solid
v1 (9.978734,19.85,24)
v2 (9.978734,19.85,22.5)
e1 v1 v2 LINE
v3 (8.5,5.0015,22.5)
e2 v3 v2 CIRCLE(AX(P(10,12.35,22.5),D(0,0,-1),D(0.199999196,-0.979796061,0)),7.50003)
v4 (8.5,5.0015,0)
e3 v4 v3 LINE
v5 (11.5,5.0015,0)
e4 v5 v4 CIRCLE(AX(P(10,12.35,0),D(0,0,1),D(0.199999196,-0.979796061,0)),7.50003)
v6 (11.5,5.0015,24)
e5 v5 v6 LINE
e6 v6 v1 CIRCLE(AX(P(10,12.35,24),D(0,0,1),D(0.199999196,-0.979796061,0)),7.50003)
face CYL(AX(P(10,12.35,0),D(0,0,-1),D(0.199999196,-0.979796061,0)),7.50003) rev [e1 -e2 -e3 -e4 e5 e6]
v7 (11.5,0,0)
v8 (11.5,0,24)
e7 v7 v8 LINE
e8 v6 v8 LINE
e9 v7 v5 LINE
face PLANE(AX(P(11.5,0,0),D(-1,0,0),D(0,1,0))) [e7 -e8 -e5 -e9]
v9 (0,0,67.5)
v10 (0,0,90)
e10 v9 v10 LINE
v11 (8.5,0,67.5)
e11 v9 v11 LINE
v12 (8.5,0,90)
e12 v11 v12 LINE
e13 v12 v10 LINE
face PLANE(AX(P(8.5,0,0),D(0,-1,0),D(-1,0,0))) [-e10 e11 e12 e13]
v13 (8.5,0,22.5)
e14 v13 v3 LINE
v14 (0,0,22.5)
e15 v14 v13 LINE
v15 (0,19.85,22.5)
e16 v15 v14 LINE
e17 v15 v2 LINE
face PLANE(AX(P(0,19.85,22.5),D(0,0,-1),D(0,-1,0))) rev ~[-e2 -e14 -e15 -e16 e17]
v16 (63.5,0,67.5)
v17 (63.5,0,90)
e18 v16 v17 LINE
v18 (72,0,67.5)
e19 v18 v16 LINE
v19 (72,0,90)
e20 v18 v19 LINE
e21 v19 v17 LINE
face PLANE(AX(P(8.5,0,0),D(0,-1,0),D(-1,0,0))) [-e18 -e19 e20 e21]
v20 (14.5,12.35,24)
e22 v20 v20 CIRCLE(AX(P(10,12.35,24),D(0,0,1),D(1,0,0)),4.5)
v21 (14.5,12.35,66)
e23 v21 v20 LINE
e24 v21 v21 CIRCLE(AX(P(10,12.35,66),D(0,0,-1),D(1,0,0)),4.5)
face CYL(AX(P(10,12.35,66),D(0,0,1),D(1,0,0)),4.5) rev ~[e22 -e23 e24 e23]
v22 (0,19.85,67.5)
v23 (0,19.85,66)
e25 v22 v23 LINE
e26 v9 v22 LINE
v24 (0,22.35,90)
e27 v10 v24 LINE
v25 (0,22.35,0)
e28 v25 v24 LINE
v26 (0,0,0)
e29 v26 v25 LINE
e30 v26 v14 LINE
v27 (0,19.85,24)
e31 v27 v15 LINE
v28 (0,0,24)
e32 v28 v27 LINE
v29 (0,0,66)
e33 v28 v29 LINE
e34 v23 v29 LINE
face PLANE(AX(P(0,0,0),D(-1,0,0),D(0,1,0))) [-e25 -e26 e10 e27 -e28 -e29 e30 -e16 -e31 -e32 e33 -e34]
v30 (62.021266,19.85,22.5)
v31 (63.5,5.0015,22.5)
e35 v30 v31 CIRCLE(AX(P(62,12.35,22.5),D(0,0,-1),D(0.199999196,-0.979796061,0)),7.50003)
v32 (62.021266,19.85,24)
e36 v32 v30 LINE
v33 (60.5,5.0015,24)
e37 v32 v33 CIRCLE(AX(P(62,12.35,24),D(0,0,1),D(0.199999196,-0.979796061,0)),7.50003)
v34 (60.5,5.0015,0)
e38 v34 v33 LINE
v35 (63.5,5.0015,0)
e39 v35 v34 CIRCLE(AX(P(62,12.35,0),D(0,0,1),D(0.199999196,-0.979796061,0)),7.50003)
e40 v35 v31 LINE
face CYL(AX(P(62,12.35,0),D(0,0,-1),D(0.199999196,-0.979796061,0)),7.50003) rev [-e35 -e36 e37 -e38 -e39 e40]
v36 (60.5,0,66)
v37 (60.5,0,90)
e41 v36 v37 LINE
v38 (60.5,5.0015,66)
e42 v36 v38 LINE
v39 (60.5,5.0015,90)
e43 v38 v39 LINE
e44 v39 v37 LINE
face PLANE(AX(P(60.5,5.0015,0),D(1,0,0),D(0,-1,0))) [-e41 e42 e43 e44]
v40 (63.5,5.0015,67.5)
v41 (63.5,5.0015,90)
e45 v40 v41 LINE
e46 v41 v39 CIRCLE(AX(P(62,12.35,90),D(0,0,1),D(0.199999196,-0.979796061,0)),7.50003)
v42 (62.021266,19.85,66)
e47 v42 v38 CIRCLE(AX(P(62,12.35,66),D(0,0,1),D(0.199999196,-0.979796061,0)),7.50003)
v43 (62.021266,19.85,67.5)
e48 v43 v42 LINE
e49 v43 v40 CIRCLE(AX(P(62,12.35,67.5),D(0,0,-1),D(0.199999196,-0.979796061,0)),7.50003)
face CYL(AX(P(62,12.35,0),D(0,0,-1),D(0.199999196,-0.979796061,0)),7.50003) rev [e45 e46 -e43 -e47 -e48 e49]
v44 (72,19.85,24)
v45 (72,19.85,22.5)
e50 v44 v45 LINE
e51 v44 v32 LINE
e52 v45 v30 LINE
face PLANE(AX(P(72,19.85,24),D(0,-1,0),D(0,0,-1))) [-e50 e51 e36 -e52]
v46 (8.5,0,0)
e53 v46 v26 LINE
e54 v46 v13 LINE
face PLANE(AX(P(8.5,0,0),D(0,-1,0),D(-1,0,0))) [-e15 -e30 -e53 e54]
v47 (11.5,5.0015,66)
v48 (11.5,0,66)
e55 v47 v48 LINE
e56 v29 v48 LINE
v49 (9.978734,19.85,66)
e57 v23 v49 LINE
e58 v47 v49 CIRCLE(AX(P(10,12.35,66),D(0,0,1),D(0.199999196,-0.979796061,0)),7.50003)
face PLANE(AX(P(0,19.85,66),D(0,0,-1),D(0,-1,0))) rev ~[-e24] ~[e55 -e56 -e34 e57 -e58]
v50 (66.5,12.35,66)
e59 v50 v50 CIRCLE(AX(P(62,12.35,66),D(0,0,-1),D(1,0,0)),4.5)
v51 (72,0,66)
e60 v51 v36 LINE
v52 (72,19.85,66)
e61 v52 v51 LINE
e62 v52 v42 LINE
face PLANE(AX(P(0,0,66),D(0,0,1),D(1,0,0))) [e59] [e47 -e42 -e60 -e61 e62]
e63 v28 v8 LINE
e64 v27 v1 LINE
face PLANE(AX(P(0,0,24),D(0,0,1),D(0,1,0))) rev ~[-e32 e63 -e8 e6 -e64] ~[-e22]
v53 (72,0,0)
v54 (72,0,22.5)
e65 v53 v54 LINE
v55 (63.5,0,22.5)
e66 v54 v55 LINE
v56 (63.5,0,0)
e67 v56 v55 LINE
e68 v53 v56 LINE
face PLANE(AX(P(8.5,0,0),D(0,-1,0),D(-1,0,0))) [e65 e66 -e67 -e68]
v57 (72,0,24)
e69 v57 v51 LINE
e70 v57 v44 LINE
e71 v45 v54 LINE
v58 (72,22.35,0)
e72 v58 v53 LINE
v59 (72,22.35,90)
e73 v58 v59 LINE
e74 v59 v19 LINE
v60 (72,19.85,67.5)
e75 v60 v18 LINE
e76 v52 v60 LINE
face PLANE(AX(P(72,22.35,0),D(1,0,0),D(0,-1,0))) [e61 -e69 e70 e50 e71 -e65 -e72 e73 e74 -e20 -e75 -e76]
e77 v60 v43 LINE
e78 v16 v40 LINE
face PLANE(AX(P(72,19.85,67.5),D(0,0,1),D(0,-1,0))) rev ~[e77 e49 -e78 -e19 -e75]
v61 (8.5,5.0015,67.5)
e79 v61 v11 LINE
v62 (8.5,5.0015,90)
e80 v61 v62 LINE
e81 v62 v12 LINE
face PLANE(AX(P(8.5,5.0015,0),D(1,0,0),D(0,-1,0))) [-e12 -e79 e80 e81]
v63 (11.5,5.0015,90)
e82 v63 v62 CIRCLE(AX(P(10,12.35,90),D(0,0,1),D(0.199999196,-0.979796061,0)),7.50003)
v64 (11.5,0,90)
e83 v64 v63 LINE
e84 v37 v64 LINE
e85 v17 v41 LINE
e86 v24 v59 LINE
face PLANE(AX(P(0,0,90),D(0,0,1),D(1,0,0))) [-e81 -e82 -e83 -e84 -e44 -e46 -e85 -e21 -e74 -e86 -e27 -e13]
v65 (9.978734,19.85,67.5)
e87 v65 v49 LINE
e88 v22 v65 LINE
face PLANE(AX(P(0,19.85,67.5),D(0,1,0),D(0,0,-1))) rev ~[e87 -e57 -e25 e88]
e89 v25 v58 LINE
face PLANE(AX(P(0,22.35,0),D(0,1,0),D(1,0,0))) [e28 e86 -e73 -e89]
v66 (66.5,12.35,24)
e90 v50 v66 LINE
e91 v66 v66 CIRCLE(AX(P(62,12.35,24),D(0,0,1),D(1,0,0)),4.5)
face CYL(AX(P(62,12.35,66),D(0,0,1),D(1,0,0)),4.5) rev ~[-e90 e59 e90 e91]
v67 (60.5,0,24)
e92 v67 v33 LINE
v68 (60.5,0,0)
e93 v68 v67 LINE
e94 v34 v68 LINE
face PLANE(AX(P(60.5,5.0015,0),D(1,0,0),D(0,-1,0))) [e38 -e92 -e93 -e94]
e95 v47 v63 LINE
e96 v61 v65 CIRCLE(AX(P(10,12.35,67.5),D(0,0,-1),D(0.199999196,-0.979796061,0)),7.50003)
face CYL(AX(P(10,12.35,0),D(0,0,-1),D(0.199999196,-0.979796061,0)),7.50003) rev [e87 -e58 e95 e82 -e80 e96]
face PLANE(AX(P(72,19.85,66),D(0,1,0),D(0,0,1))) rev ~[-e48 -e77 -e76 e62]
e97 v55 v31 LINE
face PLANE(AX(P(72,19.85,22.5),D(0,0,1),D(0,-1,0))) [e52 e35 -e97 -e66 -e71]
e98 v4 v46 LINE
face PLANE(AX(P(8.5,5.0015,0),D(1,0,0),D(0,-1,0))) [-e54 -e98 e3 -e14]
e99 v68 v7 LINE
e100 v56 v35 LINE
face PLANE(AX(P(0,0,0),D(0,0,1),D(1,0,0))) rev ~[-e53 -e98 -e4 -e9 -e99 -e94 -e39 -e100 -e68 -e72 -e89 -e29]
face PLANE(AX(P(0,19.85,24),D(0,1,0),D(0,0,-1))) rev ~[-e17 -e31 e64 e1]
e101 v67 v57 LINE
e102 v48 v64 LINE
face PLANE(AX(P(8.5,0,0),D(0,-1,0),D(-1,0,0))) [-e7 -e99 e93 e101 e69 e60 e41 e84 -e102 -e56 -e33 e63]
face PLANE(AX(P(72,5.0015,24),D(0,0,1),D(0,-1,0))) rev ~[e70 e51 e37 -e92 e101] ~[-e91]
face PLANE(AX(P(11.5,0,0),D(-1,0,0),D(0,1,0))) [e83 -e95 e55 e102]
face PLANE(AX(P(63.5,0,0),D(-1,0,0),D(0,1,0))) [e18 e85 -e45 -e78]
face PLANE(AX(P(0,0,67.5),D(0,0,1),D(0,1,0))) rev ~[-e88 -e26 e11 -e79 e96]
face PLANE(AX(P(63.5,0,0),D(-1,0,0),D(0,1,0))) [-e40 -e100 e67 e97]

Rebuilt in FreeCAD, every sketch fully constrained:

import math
import FreeCAD as App
import Part
import Sketcher
from FreeCAD import Vector
Q = App.Units.Quantity


def add_polygon(sketch, points):
    """Adds a closed chain of lines whose ends are joined by coincident constraints."""
    first, n = sketch.GeometryCount, len(points)
    for a, b in zip(points, points[1:] + points[:1]):
        sketch.addGeometry(Part.LineSegment(App.Vector(*a, 0), App.Vector(*b, 0)), False)
    for i in range(n):
        sketch.addConstraint(Sketcher.Constraint("Coincident", first + i, 2, first + (i + 1) % n, 1))

doc = App.newDocument("Part")
body = doc.addObject("PartDesign::Body", "Body")

sketch1 = doc.addObject("Sketcher::SketchObject", "Sketch")
body.addObject(sketch1)
sketch1.AttachmentSupport = (doc.XY_Plane, [""])
sketch1.MapMode = "FlatFace"
sketch1.addGeometry(Part.LineSegment(Vector(0, 22.4, 0), Vector(0, 0, 0)), False)
sketch1.addGeometry(Part.LineSegment(Vector(0, 0, 0), Vector(8.5, 0, 0)), False)
sketch1.addGeometry(Part.LineSegment(Vector(8.5, 0, 0), Vector(8.5, 5, 0)), False)
sketch1.addGeometry(Part.ArcOfCircle(Part.Circle(Vector(10, 12.3, 0), Vector(0, 0, 1), 7.5), math.radians(-78), math.radians(258)), False)
sketch1.addGeometry(Part.LineSegment(Vector(11.5, 5, 0), Vector(11.5, 0, 0)), False)
sketch1.addGeometry(Part.LineSegment(Vector(11.5, 0, 0), Vector(60.5, 0, 0)), False)
sketch1.addGeometry(Part.LineSegment(Vector(60.5, 0, 0), Vector(60.5, 5, 0)), False)
sketch1.addGeometry(Part.ArcOfCircle(Part.Circle(Vector(62, 12.3, 0), Vector(0, 0, 1), 7.5), math.radians(-78), math.radians(258)), False)
sketch1.addGeometry(Part.LineSegment(Vector(63.5, 5, 0), Vector(63.5, 0, 0)), False)
sketch1.addGeometry(Part.LineSegment(Vector(63.5, 0, 0), Vector(72, 0, 0)), False)
sketch1.addGeometry(Part.LineSegment(Vector(72, 0, 0), Vector(72, 22.4, 0)), False)
sketch1.addGeometry(Part.LineSegment(Vector(72, 22.4, 0), Vector(0, 22.4, 0)), False)
sketch1.addConstraint(Sketcher.Constraint("Coincident", 0, 2, 1, 1))
sketch1.addConstraint(Sketcher.Constraint("Coincident", 1, 2, 2, 1))
sketch1.addConstraint(Sketcher.Constraint("Coincident", 2, 2, 3, 2))
sketch1.addConstraint(Sketcher.Constraint("Coincident", 3, 1, 4, 1))
sketch1.addConstraint(Sketcher.Constraint("Coincident", 4, 2, 5, 1))
sketch1.addConstraint(Sketcher.Constraint("Coincident", 5, 2, 6, 1))
sketch1.addConstraint(Sketcher.Constraint("Coincident", 6, 2, 7, 2))
sketch1.addConstraint(Sketcher.Constraint("Coincident", 7, 1, 8, 1))
sketch1.addConstraint(Sketcher.Constraint("Coincident", 8, 2, 9, 1))
sketch1.addConstraint(Sketcher.Constraint("Coincident", 9, 2, 10, 1))
sketch1.addConstraint(Sketcher.Constraint("Coincident", 10, 2, 11, 1))
sketch1.addConstraint(Sketcher.Constraint("Coincident", 11, 2, 0, 1))
sketch1.addConstraint(Sketcher.Constraint("Vertical", 0))
sketch1.addConstraint(Sketcher.Constraint("Horizontal", 1))
sketch1.addConstraint(Sketcher.Constraint("Vertical", 2))
sketch1.addConstraint(Sketcher.Constraint("Vertical", 4))
sketch1.addConstraint(Sketcher.Constraint("Horizontal", 5))
sketch1.addConstraint(Sketcher.Constraint("Vertical", 6))
sketch1.addConstraint(Sketcher.Constraint("Vertical", 8))
sketch1.addConstraint(Sketcher.Constraint("Horizontal", 9))
sketch1.addConstraint(Sketcher.Constraint("Vertical", 10))
sketch1.addConstraint(Sketcher.Constraint("Horizontal", 11))
sketch1.addConstraint(Sketcher.Constraint("Coincident", 0, 2, -1, 1))
sketch1.addConstraint(Sketcher.Constraint("Equal", 3, 7))
sketch1.addConstraint(Sketcher.Constraint("PointOnObject", 4, 2, -1))
sketch1.addConstraint(Sketcher.Constraint("PointOnObject", 8, 2, -1))
sketch1.addConstraint(Sketcher.Constraint("Horizontal", 3, 3, 7, 3))
sketch1.addConstraint(Sketcher.Constraint("Horizontal", 2, 2, 3, 1))
sketch1.addConstraint(Sketcher.Constraint("Horizontal", 3, 1, 6, 2))
sketch1.addConstraint(Sketcher.Constraint("Horizontal", 6, 2, 7, 1))
sketch1.addConstraint(Sketcher.Constraint("Equal", 1, 9))
sketch1.addConstraint(Sketcher.Constraint("Radius", 3, Q("7.5 mm")))
sketch1.addConstraint(Sketcher.Constraint("DistanceX", 11, 2, 11, 1, Q("72 mm")))
sketch1.addConstraint(Sketcher.Constraint("DistanceX", -1, 1, 3, 3, Q("10 mm")))
sketch1.addConstraint(Sketcher.Constraint("DistanceX", 2, 2, 3, 1, Q("3 mm")))
sketch1.addConstraint(Sketcher.Constraint("DistanceY", 7, 3, 10, 2, Q("10 mm")))
sketch1.addConstraint(Sketcher.Constraint("DistanceY", 0, 2, 0, 1, Q("22.35 mm")))
pad1 = doc.addObject("PartDesign::Pad", "Pad")
body.addObject(pad1)
pad1.Profile = sketch1
pad1.Length = 90

sketch2 = doc.addObject("Sketcher::SketchObject", "Sketch001")
body.addObject(sketch2)
sketch2.AttachmentSupport = (doc.XY_Plane, [""])
sketch2.MapMode = "FlatFace"
sketch2.AttachmentOffset = App.Placement(Vector(0, 0, 66), App.Rotation())
sketch2.addGeometry(Part.LineSegment(Vector(8.5, 5, 0), Vector(8.5, 0, 0)), False)
sketch2.addGeometry(Part.LineSegment(Vector(8.5, 0, 0), Vector(11.5, 0, 0)), False)
sketch2.addGeometry(Part.LineSegment(Vector(11.5, 0, 0), Vector(11.5, 5, 0)), False)
sketch2.addGeometry(Part.ArcOfCircle(Part.Circle(Vector(10, 12.3, 0), Vector(0, 0, 1), 7.5), math.radians(-78), math.radians(258)), False)
sketch2.addGeometry(Part.LineSegment(Vector(60.5, 0, 0), Vector(63.5, 0, 0)), False)
sketch2.addGeometry(Part.LineSegment(Vector(63.5, 0, 0), Vector(63.5, 5, 0)), False)
sketch2.addGeometry(Part.ArcOfCircle(Part.Circle(Vector(62, 12.3, 0), Vector(0, 0, 1), 7.5), math.radians(-78), math.radians(258)), False)
sketch2.addGeometry(Part.LineSegment(Vector(60.5, 5, 0), Vector(60.5, 0, 0)), False)
sketch2.addConstraint(Sketcher.Constraint("Coincident", 0, 2, 1, 1))
sketch2.addConstraint(Sketcher.Constraint("Coincident", 1, 2, 2, 1))
sketch2.addConstraint(Sketcher.Constraint("Coincident", 2, 2, 3, 1))
sketch2.addConstraint(Sketcher.Constraint("Coincident", 3, 2, 0, 1))
sketch2.addConstraint(Sketcher.Constraint("Coincident", 4, 2, 5, 1))
sketch2.addConstraint(Sketcher.Constraint("Coincident", 5, 2, 6, 1))
sketch2.addConstraint(Sketcher.Constraint("Coincident", 6, 2, 7, 1))
sketch2.addConstraint(Sketcher.Constraint("Coincident", 7, 2, 4, 1))
sketch2.addConstraint(Sketcher.Constraint("Vertical", 0))
sketch2.addConstraint(Sketcher.Constraint("Horizontal", 1))
sketch2.addConstraint(Sketcher.Constraint("Vertical", 2))
sketch2.addConstraint(Sketcher.Constraint("Horizontal", 4))
sketch2.addConstraint(Sketcher.Constraint("Vertical", 5))
sketch2.addConstraint(Sketcher.Constraint("Vertical", 7))
sketch2.addConstraint(Sketcher.Constraint("Equal", 3, 6))
sketch2.addConstraint(Sketcher.Constraint("PointOnObject", 0, 2, -1))
sketch2.addConstraint(Sketcher.Constraint("PointOnObject", 4, 2, -1))
sketch2.addConstraint(Sketcher.Constraint("Horizontal", 3, 3, 6, 3))
sketch2.addConstraint(Sketcher.Constraint("Horizontal", 2, 2, 3, 2))
sketch2.addConstraint(Sketcher.Constraint("Horizontal", 3, 2, 5, 2))
sketch2.addConstraint(Sketcher.Constraint("Horizontal", 5, 2, 6, 2))
sketch2.addConstraint(Sketcher.Constraint("Radius", 3, Q("7.5 mm")))
sketch2.addConstraint(Sketcher.Constraint("DistanceX", 1, 1, 1, 2, Q("3 mm")))
sketch2.addConstraint(Sketcher.Constraint("DistanceX", -1, 1, 3, 3, Q("10 mm")))
sketch2.addConstraint(Sketcher.Constraint("DistanceX", -1, 1, 6, 3, Q("62 mm")))
sketch2.addConstraint(Sketcher.Constraint("DistanceY", -1, 1, 3, 3, Q("12.35 mm")))
pad2 = doc.addObject("PartDesign::Pad", "Pad001")
body.addObject(pad2)
pad2.Profile = sketch2
pad2.Length = 42
pad2.Reversed = True

sketch3 = doc.addObject("Sketcher::SketchObject", "Sketch002")
body.addObject(sketch3)
sketch3.AttachmentSupport = (doc.XY_Plane, [""])
sketch3.MapMode = "FlatFace"
sketch3.AttachmentOffset = App.Placement(Vector(0, 0, 66), App.Rotation())
sketch3.addGeometry(Part.Circle(Vector(10, 12.3, 0), Vector(0, 0, 1), 4.5), False)
sketch3.addGeometry(Part.Circle(Vector(62, 12.3, 0), Vector(0, 0, 1), 4.5), False)
sketch3.addConstraint(Sketcher.Constraint("Equal", 0, 1))
sketch3.addConstraint(Sketcher.Constraint("Horizontal", 0, 3, 1, 3))
sketch3.addConstraint(Sketcher.Constraint("Diameter", 0, Q("9 mm")))
sketch3.addConstraint(Sketcher.Constraint("DistanceX", -1, 1, 0, 3, Q("10 mm")))
sketch3.addConstraint(Sketcher.Constraint("DistanceX", -1, 1, 1, 3, Q("62 mm")))
sketch3.addConstraint(Sketcher.Constraint("DistanceY", -1, 1, 0, 3, Q("12.35 mm")))
pocket1 = doc.addObject("PartDesign::Pocket", "Pocket")
body.addObject(pocket1)
pocket1.Profile = sketch3
pocket1.Length = 42

sketch4 = doc.addObject("Sketcher::SketchObject", "Sketch003")
body.addObject(sketch4)
sketch4.AttachmentSupport = (doc.YZ_Plane, [""])
sketch4.MapMode = "FlatFace"
sketch4.AttachmentOffset = App.Placement(Vector(0, 0, 72), App.Rotation())
add_polygon(sketch4, [(0, 22.5), (19.9, 22.5), (19.9, 24), (0, 24)])
add_polygon(sketch4, [(19.9, 66), (19.9, 67.5), (0, 67.5), (0, 66)])
sketch4.addConstraint(Sketcher.Constraint("Horizontal", 0))
sketch4.addConstraint(Sketcher.Constraint("Vertical", 1))
sketch4.addConstraint(Sketcher.Constraint("Horizontal", 2))
sketch4.addConstraint(Sketcher.Constraint("Vertical", 3))
sketch4.addConstraint(Sketcher.Constraint("Vertical", 4))
sketch4.addConstraint(Sketcher.Constraint("Horizontal", 5))
sketch4.addConstraint(Sketcher.Constraint("Vertical", 6))
sketch4.addConstraint(Sketcher.Constraint("Horizontal", 7))
sketch4.addConstraint(Sketcher.Constraint("PointOnObject", 2, 2, -2))
sketch4.addConstraint(Sketcher.Constraint("PointOnObject", 5, 2, -2))
sketch4.addConstraint(Sketcher.Constraint("Vertical", 1, 2, 4, 2))
sketch4.addConstraint(Sketcher.Constraint("Equal", 3, 4))
sketch4.addConstraint(Sketcher.Constraint("DistanceY", 1, 1, 1, 2, Q("1.5 mm")))
sketch4.addConstraint(Sketcher.Constraint("DistanceY", -1, 1, 1, 2, Q("24 mm")))
sketch4.addConstraint(Sketcher.Constraint("DistanceY", -1, 1, 6, 2, Q("66 mm")))
sketch4.addConstraint(Sketcher.Constraint("DistanceX", 0, 1, 0, 2, Q("19.85 mm")))
pocket2 = doc.addObject("PartDesign::Pocket", "Pocket001")
body.addObject(pocket2)
pocket2.Profile = sketch4
pocket2.Length = 10

sketch5 = doc.addObject("Sketcher::SketchObject", "Sketch004")
body.addObject(sketch5)
sketch5.AttachmentSupport = (doc.YZ_Plane, [""])
sketch5.MapMode = "FlatFace"
add_polygon(sketch5, [(19.9, 22.5), (0, 22.5), (0, 24), (19.9, 24)])
add_polygon(sketch5, [(19.9, 66), (0, 66), (0, 67.5), (19.9, 67.5)])
sketch5.addConstraint(Sketcher.Constraint("Horizontal", 0))
sketch5.addConstraint(Sketcher.Constraint("Vertical", 1))
sketch5.addConstraint(Sketcher.Constraint("Horizontal", 2))
sketch5.addConstraint(Sketcher.Constraint("Vertical", 3))
sketch5.addConstraint(Sketcher.Constraint("Horizontal", 4))
sketch5.addConstraint(Sketcher.Constraint("Vertical", 5))
sketch5.addConstraint(Sketcher.Constraint("Horizontal", 6))
sketch5.addConstraint(Sketcher.Constraint("Vertical", 7))
sketch5.addConstraint(Sketcher.Constraint("PointOnObject", 0, 2, -2))
sketch5.addConstraint(Sketcher.Constraint("PointOnObject", 4, 2, -2))
sketch5.addConstraint(Sketcher.Constraint("Vertical", 3, 2, 6, 2))
sketch5.addConstraint(Sketcher.Constraint("Equal", 3, 5))
sketch5.addConstraint(Sketcher.Constraint("DistanceY", 1, 1, 1, 2, Q("1.5 mm")))
sketch5.addConstraint(Sketcher.Constraint("DistanceY", -1, 1, 1, 2, Q("24 mm")))
sketch5.addConstraint(Sketcher.Constraint("DistanceY", -1, 1, 4, 2, Q("66 mm")))
sketch5.addConstraint(Sketcher.Constraint("DistanceX", 0, 2, 0, 1, Q("19.85 mm")))
pocket3 = doc.addObject("PartDesign::Pocket", "Pocket002")
body.addObject(pocket3)
pocket3.Profile = sketch5
pocket3.Length = 10
pocket3.Reversed = True

doc.recompute()
